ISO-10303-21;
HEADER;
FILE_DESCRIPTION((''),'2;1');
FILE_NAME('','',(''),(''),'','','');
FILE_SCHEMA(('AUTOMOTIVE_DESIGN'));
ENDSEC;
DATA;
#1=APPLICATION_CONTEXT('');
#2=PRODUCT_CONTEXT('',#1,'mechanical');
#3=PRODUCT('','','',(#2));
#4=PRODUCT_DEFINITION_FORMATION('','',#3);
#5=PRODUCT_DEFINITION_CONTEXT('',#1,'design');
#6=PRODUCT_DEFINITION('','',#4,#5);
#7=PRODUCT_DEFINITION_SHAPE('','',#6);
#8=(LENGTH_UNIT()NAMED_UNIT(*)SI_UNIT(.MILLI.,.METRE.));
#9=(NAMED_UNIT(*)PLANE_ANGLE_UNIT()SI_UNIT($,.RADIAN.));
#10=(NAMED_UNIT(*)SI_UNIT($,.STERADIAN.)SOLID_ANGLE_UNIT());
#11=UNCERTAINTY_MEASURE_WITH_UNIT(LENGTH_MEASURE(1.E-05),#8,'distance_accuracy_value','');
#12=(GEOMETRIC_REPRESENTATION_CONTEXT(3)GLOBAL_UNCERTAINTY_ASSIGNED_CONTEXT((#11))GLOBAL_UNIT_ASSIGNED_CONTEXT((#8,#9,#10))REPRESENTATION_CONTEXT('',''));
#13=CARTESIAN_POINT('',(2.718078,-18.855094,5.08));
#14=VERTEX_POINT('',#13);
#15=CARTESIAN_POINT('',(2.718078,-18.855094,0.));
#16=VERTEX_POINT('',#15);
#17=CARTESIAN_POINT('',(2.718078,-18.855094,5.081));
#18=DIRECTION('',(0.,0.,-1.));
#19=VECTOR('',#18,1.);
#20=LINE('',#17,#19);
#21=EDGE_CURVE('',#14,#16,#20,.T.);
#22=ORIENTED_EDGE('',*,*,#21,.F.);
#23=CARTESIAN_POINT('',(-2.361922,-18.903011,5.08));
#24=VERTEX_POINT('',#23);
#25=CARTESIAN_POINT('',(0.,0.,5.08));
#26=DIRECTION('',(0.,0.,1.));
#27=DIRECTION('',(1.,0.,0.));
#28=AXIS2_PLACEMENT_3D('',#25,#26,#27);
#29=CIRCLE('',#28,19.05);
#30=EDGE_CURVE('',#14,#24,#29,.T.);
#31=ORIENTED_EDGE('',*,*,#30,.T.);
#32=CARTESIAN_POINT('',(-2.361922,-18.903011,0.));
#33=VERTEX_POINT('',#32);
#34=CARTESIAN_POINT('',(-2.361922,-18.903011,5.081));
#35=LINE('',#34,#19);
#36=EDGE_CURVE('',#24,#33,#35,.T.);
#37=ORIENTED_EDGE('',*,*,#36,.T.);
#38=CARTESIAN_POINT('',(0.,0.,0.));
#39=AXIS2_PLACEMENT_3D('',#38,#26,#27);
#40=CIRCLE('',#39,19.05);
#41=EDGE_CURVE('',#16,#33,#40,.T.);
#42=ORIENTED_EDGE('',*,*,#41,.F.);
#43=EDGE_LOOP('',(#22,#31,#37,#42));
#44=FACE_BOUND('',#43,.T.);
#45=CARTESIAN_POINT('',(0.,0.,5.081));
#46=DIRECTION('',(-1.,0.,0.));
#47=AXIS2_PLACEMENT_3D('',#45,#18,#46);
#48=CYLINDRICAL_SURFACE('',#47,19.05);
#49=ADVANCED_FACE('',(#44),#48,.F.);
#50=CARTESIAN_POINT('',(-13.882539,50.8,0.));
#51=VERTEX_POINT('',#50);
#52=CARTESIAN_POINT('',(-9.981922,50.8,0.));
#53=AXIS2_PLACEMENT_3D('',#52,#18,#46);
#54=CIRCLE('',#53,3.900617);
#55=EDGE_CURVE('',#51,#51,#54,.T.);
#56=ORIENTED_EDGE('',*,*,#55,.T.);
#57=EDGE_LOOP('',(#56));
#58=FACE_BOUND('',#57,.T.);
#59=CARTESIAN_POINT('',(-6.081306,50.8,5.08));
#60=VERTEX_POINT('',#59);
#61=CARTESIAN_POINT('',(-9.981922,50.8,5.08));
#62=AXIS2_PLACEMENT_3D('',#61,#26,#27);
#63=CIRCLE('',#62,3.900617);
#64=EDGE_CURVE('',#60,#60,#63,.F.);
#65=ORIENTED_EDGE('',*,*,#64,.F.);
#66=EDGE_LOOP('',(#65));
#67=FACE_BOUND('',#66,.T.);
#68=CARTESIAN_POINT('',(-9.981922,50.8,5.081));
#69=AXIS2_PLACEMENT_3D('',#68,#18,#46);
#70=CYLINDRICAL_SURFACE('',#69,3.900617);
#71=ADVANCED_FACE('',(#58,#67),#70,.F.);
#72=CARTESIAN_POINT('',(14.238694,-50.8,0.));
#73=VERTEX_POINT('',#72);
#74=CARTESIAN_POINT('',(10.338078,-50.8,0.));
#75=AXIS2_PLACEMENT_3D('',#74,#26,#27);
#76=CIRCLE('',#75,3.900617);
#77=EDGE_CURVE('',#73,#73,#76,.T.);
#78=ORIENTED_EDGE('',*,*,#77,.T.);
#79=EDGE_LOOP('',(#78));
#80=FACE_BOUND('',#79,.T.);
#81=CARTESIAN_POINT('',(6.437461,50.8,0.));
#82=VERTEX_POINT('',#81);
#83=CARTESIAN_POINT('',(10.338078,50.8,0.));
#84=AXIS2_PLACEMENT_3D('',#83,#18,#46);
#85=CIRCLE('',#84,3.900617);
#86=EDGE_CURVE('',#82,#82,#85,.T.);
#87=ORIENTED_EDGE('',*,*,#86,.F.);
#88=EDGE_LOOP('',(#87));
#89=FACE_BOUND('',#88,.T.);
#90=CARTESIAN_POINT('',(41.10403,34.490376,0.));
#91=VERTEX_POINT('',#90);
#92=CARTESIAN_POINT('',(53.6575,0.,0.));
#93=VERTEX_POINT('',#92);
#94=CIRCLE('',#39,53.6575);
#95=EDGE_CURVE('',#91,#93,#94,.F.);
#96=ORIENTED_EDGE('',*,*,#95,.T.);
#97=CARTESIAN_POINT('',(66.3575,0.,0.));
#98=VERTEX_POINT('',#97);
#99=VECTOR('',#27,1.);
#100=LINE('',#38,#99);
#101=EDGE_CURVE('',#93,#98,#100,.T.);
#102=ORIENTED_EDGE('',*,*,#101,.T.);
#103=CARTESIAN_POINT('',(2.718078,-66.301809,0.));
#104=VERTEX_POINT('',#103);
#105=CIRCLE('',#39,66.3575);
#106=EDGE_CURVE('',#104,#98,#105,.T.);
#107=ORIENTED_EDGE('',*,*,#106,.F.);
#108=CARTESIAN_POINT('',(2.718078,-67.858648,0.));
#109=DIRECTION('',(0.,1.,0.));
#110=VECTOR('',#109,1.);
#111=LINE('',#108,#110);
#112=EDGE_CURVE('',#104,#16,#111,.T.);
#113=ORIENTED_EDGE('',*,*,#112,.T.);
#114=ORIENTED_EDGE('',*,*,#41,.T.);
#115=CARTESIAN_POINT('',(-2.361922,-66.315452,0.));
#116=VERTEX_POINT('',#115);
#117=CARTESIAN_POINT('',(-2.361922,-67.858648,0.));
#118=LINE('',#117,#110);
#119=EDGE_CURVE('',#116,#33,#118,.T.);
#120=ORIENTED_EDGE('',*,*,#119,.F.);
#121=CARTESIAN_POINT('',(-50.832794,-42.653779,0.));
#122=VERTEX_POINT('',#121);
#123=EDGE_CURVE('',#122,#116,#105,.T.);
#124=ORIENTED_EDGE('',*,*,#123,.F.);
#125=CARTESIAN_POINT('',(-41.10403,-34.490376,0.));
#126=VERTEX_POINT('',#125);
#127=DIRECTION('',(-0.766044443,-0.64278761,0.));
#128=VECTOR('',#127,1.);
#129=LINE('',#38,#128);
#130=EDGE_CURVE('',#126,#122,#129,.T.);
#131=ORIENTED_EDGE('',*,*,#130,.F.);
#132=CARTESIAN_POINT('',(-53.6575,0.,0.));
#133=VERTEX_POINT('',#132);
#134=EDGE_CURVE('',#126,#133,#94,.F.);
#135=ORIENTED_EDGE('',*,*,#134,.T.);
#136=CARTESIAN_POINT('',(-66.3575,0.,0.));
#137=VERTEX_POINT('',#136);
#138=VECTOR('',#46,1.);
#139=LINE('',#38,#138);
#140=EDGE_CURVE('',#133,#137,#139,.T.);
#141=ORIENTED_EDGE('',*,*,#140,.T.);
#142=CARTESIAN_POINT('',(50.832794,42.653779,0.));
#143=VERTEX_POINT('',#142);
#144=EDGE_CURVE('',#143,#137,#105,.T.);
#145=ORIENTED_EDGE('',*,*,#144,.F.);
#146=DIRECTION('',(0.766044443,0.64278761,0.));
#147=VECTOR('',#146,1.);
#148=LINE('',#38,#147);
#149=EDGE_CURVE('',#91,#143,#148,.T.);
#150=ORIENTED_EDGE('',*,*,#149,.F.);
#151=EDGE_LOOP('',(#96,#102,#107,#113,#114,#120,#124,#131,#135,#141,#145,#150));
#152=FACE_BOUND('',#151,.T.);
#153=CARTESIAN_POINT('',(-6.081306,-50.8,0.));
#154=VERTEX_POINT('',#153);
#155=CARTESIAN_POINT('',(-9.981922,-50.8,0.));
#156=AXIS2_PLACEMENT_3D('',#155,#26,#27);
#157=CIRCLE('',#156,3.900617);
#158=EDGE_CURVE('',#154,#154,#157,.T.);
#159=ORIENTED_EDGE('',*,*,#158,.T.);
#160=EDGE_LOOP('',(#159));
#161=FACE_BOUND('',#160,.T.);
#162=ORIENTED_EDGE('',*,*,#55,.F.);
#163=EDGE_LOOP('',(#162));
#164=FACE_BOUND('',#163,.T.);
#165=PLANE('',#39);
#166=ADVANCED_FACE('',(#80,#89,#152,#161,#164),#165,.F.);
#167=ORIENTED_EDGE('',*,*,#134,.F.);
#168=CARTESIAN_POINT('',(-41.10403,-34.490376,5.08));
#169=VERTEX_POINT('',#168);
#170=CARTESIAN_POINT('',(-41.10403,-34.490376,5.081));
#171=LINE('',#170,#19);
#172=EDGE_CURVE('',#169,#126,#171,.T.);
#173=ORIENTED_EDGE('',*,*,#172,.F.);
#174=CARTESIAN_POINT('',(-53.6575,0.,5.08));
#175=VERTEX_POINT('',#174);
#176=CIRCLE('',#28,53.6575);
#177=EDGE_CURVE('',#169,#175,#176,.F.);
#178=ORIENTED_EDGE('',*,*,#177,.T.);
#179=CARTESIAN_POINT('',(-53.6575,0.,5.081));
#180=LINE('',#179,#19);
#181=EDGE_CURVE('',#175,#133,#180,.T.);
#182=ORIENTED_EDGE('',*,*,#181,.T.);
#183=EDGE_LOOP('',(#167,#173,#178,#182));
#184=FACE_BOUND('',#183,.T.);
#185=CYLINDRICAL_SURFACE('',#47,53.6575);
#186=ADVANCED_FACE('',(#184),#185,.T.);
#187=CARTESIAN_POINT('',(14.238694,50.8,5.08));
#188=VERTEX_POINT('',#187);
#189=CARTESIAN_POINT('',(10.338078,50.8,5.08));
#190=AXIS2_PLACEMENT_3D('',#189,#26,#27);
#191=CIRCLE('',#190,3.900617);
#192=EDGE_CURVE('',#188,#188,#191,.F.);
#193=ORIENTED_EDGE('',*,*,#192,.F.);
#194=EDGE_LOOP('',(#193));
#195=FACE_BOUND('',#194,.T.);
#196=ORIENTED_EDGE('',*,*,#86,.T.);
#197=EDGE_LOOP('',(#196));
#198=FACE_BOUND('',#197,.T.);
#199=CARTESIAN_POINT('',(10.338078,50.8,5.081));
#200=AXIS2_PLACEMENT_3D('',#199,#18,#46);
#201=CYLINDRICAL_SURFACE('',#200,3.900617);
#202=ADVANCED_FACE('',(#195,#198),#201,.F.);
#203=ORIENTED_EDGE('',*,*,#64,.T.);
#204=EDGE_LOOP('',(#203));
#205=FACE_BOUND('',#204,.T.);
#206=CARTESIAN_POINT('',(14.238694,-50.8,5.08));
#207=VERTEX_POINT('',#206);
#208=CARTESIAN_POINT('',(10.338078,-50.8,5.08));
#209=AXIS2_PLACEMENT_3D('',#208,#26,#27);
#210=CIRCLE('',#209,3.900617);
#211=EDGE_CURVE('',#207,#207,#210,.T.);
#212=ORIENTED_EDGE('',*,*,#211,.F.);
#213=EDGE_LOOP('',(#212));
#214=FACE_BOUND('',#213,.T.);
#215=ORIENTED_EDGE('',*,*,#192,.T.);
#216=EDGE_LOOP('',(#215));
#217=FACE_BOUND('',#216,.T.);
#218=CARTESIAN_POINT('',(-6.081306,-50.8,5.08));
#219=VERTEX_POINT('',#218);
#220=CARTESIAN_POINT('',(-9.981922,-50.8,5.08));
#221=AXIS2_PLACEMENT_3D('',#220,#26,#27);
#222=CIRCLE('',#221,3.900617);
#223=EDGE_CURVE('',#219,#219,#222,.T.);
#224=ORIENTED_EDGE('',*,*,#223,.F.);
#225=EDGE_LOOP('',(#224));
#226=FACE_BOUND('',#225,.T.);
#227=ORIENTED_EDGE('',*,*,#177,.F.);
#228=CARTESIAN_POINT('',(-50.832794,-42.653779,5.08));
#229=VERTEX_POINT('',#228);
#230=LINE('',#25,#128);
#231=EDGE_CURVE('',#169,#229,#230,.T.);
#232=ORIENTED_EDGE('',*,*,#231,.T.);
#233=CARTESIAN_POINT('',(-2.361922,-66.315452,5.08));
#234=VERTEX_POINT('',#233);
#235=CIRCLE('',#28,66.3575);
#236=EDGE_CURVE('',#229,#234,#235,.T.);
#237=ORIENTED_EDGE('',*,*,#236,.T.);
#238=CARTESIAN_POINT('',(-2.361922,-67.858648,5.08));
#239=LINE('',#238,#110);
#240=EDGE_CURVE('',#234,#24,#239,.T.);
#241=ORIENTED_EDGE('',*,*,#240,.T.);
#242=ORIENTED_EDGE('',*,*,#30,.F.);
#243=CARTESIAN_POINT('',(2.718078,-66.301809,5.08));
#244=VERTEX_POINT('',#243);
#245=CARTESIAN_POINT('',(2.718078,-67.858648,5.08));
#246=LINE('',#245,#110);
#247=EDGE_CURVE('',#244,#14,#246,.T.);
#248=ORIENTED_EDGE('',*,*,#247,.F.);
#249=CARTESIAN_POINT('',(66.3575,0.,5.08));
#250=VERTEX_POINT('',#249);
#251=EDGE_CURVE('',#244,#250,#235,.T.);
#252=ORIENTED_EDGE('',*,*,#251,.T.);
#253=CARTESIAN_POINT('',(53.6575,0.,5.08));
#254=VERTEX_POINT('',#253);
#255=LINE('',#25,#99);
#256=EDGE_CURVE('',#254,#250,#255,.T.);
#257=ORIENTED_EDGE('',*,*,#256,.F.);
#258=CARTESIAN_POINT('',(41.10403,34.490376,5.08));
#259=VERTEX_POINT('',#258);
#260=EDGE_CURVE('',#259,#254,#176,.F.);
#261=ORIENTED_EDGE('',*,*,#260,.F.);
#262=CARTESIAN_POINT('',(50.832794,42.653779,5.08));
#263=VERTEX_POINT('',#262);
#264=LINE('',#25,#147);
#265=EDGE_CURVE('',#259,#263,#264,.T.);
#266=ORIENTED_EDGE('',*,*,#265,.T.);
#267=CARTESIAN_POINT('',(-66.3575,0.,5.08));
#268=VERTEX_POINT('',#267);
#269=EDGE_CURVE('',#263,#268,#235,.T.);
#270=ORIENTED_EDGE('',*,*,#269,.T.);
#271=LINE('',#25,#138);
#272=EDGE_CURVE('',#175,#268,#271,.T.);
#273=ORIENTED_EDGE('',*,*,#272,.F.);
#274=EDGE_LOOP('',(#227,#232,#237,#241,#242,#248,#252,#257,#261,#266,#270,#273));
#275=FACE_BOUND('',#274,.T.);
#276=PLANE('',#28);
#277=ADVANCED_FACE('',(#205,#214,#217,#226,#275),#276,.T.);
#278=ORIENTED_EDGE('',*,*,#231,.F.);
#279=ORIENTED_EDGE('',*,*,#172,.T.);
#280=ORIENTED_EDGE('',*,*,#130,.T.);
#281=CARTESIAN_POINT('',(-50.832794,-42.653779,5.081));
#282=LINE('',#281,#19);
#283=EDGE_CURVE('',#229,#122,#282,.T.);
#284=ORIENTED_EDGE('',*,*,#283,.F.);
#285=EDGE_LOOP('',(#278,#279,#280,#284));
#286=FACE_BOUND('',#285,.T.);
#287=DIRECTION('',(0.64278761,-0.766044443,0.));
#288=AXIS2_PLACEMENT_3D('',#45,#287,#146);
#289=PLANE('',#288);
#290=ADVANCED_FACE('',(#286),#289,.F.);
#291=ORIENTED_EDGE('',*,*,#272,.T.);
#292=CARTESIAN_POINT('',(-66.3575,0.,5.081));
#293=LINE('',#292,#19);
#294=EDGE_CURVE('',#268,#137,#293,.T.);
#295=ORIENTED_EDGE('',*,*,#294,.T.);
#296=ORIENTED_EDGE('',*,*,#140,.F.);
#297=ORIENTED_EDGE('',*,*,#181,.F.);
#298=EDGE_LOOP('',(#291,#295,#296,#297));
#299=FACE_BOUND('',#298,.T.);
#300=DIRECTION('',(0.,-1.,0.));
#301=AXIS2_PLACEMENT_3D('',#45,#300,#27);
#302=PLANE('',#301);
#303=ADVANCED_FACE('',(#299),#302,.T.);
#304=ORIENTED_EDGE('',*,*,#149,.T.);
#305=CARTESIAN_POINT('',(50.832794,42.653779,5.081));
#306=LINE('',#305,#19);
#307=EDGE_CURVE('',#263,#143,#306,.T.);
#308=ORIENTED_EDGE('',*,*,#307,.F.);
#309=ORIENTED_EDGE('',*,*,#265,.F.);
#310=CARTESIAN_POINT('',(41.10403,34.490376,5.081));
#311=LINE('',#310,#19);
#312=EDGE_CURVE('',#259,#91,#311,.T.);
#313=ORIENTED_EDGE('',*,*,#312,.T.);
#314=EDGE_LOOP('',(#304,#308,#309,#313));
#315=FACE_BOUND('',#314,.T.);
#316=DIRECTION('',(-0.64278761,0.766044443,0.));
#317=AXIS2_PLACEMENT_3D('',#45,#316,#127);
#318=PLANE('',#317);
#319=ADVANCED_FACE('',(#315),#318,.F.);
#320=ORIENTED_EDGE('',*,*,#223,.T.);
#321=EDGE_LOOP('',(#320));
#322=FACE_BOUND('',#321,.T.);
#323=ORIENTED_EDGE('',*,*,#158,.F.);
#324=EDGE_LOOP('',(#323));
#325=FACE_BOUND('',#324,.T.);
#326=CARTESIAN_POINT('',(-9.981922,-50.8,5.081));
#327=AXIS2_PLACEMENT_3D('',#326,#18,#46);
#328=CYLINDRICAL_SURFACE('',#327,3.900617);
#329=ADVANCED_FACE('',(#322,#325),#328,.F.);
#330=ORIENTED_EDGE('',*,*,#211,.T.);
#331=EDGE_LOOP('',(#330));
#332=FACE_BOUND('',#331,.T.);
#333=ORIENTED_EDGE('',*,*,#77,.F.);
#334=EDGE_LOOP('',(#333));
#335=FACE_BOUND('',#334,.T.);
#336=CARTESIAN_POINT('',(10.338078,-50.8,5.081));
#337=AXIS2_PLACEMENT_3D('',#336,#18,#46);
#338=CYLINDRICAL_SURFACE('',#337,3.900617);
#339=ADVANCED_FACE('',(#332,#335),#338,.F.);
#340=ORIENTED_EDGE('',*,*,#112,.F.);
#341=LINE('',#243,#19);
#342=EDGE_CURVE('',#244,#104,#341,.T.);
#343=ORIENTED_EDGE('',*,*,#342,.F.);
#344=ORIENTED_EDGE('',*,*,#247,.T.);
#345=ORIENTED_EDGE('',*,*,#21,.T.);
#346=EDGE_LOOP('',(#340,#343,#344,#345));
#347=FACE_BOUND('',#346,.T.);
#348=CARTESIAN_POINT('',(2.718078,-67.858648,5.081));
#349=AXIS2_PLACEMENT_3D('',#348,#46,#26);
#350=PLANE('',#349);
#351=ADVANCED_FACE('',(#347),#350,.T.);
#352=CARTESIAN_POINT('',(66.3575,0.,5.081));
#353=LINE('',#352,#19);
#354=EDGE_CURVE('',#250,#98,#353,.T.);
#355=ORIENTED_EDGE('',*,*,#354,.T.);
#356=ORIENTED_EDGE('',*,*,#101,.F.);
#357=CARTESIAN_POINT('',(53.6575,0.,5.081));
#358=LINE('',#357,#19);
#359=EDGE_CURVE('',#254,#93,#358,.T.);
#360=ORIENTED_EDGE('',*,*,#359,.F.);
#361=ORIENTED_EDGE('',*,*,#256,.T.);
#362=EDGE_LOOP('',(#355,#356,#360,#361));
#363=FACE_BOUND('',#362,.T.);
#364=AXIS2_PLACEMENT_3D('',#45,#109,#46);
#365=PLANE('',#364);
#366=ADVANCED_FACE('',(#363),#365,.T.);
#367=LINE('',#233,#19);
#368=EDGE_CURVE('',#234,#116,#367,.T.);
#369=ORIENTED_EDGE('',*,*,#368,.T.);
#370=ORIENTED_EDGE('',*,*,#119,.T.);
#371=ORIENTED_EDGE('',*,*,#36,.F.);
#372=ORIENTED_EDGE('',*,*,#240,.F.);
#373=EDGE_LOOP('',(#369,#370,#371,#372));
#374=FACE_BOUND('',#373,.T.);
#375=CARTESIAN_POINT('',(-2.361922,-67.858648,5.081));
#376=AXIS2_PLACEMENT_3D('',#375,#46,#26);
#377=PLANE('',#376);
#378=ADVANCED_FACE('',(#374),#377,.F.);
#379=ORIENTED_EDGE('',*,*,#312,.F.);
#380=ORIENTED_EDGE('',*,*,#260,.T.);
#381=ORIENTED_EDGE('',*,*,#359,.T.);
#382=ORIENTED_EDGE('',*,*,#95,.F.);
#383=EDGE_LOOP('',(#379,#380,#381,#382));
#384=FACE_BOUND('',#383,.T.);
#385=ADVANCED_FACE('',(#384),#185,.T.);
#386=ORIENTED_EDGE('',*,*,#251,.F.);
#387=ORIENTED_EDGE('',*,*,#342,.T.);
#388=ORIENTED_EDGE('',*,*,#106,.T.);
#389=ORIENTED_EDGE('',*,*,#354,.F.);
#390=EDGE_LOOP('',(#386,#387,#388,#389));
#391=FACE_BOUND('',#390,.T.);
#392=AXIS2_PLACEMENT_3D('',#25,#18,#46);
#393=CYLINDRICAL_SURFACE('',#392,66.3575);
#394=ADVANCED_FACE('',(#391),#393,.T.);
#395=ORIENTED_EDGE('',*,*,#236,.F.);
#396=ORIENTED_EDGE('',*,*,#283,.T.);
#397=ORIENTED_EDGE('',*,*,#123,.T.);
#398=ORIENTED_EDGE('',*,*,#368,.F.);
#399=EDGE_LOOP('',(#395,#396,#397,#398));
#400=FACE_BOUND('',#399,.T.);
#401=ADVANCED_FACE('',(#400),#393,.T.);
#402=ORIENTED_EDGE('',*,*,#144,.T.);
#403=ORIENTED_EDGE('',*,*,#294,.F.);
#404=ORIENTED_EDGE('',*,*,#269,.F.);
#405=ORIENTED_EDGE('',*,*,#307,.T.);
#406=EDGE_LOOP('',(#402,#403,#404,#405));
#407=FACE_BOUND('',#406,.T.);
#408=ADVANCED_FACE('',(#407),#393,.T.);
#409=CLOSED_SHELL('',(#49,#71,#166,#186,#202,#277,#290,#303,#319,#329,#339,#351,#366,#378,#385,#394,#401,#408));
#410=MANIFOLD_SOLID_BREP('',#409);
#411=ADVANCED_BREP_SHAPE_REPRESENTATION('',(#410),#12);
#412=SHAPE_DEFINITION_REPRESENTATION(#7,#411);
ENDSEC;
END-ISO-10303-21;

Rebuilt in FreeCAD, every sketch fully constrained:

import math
import FreeCAD as App
import Part
import Sketcher
Q = App.Units.Quantity


def add_polygon(sketch, points):
    """Adds a closed chain of lines whose ends are joined by coincident constraints."""
    first, n = sketch.GeometryCount, len(points)
    for a, b in zip(points, points[1:] + points[:1]):
        sketch.addGeometry(Part.LineSegment(App.Vector(*a, 0), App.Vector(*b, 0)), False)
    for i in range(n):
        sketch.addConstraint(Sketcher.Constraint("Coincident", first + i, 2, first + (i + 1) % n, 1))

doc = App.newDocument("Part")
body = doc.addObject("PartDesign::Body", "Body")

sketch1 = body.newObject("Sketcher::SketchObject", "Sketch")
sketch1.AttachmentSupport = (doc.getObject("XY_Plane"), [""])
sketch1.MapMode = "FlatFace"
sketch1.addGeometry(Part.Circle(App.Vector(0, 0, 0), App.Vector(0, 0, 1), 66), False)
sketch1.addConstraint([
    Sketcher.Constraint("Coincident", 0, 3, -1, 1),
    Sketcher.Constraint("Diameter", 0, Q("5.225 in")),
])
pad1 = body.newObject("PartDesign::Pad", "Pad")
pad1.Profile = sketch1
pad1.Length = Q("0.2 in")

sketch2 = body.newObject("Sketcher::SketchObject", "Sketch001")
sketch2.AttachmentSupport = (doc.getObject("XY_Plane"), [""])
sketch2.MapMode = "FlatFace"
sketch2.addGeometry(Part.Circle(App.Vector(0, 0, 0), App.Vector(0, 0, 1), 19), False)
sketch2.addConstraint([
    Sketcher.Constraint("Coincident", 0, 3, -1, 1),
    Sketcher.Constraint("Diameter", 0, Q("1.5 in")),
])
pocket1 = body.newObject("PartDesign::Pocket", "Pocket")
pocket1.Profile = sketch2
pocket1.Type = "UpToFirst"
pocket1.Reversed = True

sketch3 = body.newObject("Sketcher::SketchObject", "Sketch002")
sketch3.AttachmentSupport = (doc.getObject("XY_Plane"), [""])
sketch3.MapMode = "FlatFace"
sketch3.addGeometry([
    Part.LineSegment(App.Vector(-51, -43, 0), App.Vector(-41, -34, 0)),
    Part.ArcOfCircle(Part.Circle(App.Vector(0, 0, 0), App.Vector(0, 0, 1), 54), math.radians(-180), math.radians(-140)),
    Part.LineSegment(App.Vector(-54, 0, 0), App.Vector(-66, 0, 0)),
    Part.ArcOfCircle(Part.Circle(App.Vector(0, 0, 0), App.Vector(0, 0, 1), 66), math.radians(180), math.radians(220)),
], False)
sketch3.addConstraint([
    Sketcher.Constraint("Coincident", 0, 2, 1, 2),
    Sketcher.Constraint("Coincident", 1, 1, 2, 1),
    Sketcher.Constraint("Coincident", 2, 2, 3, 1),
    Sketcher.Constraint("Coincident", 3, 2, 0, 1),
    Sketcher.Constraint("Horizontal", 2),
    Sketcher.Constraint("Coincident", 1, 3, -1, 1),
    Sketcher.Constraint("Coincident", 3, 3, -1, 1),
    Sketcher.Constraint("PointOnObject", 1, 1, -1),
    Sketcher.Constraint("DistanceX", 2, 2, 2, 1, Q("0.5 in")),
    Sketcher.Constraint("Angle", 0, Q("40 deg")),
    Sketcher.Constraint("Radius", 1, Q("2.1125 in")),
    Sketcher.Constraint("DistanceX", 0, 2, -1, 1, 41.10403),
])
pocket2 = body.newObject("PartDesign::Pocket", "Pocket001")
pocket2.Profile = sketch3
pocket2.Type = "UpToFirst"
pocket2.Reversed = True

sketch4 = body.newObject("Sketcher::SketchObject", "Sketch003")
sketch4.AttachmentSupport = (doc.getObject("XY_Plane"), [""])
sketch4.MapMode = "FlatFace"
sketch4.addGeometry([
    Part.ArcOfCircle(Part.Circle(App.Vector(0, 0, 0), App.Vector(0, 0, 1), 66), math.radians(0), math.radians(40)),
    Part.LineSegment(App.Vector(51, 43, 0), App.Vector(41, 34, 0)),
    Part.ArcOfCircle(Part.Circle(App.Vector(0, 0, 0), App.Vector(0, 0, 1), 54), math.radians(0), math.radians(40)),
    Part.LineSegment(App.Vector(54, 0, 0), App.Vector(66, 0, 0)),
], False)
sketch4.addConstraint([
    Sketcher.Constraint("Coincident", 0, 2, 1, 1),
    Sketcher.Constraint("Coincident", 1, 2, 2, 2),
    Sketcher.Constraint("Coincident", 2, 1, 3, 1),
    Sketcher.Constraint("Coincident", 3, 2, 0, 1),
    Sketcher.Constraint("Horizontal", 3),
    Sketcher.Constraint("Coincident", 0, 3, -1, 1),
    Sketcher.Constraint("Coincident", 2, 3, -1, 1),
    Sketcher.Constraint("PointOnObject", 2, 1, -1),
    Sketcher.Constraint("DistanceX", 3, 1, 3, 2, Q("0.5 in")),
    Sketcher.Constraint("Angle", 1, Q("-140 deg")),
    Sketcher.Constraint("Radius", 0, Q("2.6125 in")),
    Sketcher.Constraint("DistanceY", -1, 1, 0, 2, 42.653779),
])
pocket3 = body.newObject("PartDesign::Pocket", "Pocket002")
pocket3.Profile = sketch4
pocket3.Type = "UpToFirst"
pocket3.Reversed = True

sketch5 = body.newObject("Sketcher::SketchObject", "Sketch004")
sketch5.AttachmentSupport = (doc.getObject("XY_Plane"), [""])
sketch5.MapMode = "FlatFace"
sketch5.addGeometry(Part.Circle(App.Vector(10.3, -50.8, 0), App.Vector(0, 0, 1), 3.9), False)
sketch5.addConstraint([
    Sketcher.Constraint("DistanceY", 0, 3, -1, 1, Q("2 in")),
    Sketcher.Constraint("Diameter", 0, 7.801234),
    Sketcher.Constraint("DistanceX", -1, 1, 0, 3, 10.338078),
])
pocket4 = body.newObject("PartDesign::Pocket", "Pocket003")
pocket4.Profile = sketch5
pocket4.Type = "UpToFirst"
pocket4.Reversed = True

sketch6 = body.newObject("Sketcher::SketchObject", "Sketch005")
sketch6.AttachmentSupport = (doc.getObject("XY_Plane"), [""])
sketch6.MapMode = "FlatFace"
sketch6.addGeometry(Part.Circle(App.Vector(-10, -50.8, 0), App.Vector(0, 0, 1), 3.9), False)
sketch6.addConstraint([
    Sketcher.Constraint("DistanceY", 0, 3, -1, 1, Q("2 in")),
    Sketcher.Constraint("Diameter", 0, 7.801234),
    Sketcher.Constraint("DistanceX", 0, 3, -1, 1, 9.981922),
])
pocket5 = body.newObject("PartDesign::Pocket", "Pocket004")
pocket5.Profile = sketch6
pocket5.Type = "UpToFirst"
pocket5.Reversed = True

sketch7 = body.newObject("Sketcher::SketchObject", "Sketch006")
sketch7.AttachmentSupport = (doc.getObject("XY_Plane"), [""])
sketch7.MapMode = "FlatFace"
sketch7.addGeometry(Part.Circle(App.Vector(10.3, 50.8, 0), App.Vector(0, 0, 1), 3.9), False)
sketch7.addConstraint([
    Sketcher.Constraint("DistanceY", -1, 1, 0, 3, Q("2 in")),
    Sketcher.Constraint("Diameter", 0, 7.801234),
    Sketcher.Constraint("DistanceX", -1, 1, 0, 3, 10.338078),
])
pocket6 = body.newObject("PartDesign::Pocket", "Pocket005")
pocket6.Profile = sketch7
pocket6.Type = "UpToFirst"
pocket6.Reversed = True

sketch8 = body.newObject("Sketcher::SketchObject", "Sketch007")
sketch8.AttachmentSupport = (doc.getObject("XY_Plane"), [""])
sketch8.MapMode = "FlatFace"
sketch8.addGeometry(Part.Circle(App.Vector(-10, 50.8, 0), App.Vector(0, 0, 1), 3.9), False)
sketch8.addConstraint([
    Sketcher.Constraint("DistanceY", -1, 1, 0, 3, Q("2 in")),
    Sketcher.Constraint("Diameter", 0, 7.801234),
    Sketcher.Constraint("DistanceX", 0, 3, -1, 1, 9.981922),
])
pocket7 = body.newObject("PartDesign::Pocket", "Pocket006")
pocket7.Profile = sketch8
pocket7.Type = "UpToFirst"
pocket7.Reversed = True

sketch9 = body.newObject("Sketcher::SketchObject", "Sketch008")
sketch9.AttachmentSupport = (doc.getObject("XY_Plane"), [""])
sketch9.MapMode = "FlatFace"
add_polygon(sketch9, [(-2, -9), (-2, -68), (3, -68), (3, -9)])
sketch9.addConstraint([
    Sketcher.Constraint("Vertical", 0),
    Sketcher.Constraint("Horizontal", 1),
    Sketcher.Constraint("Vertical", 2),
    Sketcher.Constraint("Horizontal", 3),
    Sketcher.Constraint("DistanceX", 1, 1, 1, 2, Q("0.2 in")),
    Sketcher.Constraint("DistanceY", 0, 2, 0, 1, 59.193573),
    Sketcher.Constraint("DistanceY", 0, 2, -1, 1, 67.858648),
    Sketcher.Constraint("DistanceX", 0, 2, -1, 1, 2.361922),
])
pocket8 = body.newObject("PartDesign::Pocket", "Pocket007")
pocket8.Profile = sketch9
pocket8.Type = "UpToFirst"
pocket8.Reversed = True

doc.recompute()
